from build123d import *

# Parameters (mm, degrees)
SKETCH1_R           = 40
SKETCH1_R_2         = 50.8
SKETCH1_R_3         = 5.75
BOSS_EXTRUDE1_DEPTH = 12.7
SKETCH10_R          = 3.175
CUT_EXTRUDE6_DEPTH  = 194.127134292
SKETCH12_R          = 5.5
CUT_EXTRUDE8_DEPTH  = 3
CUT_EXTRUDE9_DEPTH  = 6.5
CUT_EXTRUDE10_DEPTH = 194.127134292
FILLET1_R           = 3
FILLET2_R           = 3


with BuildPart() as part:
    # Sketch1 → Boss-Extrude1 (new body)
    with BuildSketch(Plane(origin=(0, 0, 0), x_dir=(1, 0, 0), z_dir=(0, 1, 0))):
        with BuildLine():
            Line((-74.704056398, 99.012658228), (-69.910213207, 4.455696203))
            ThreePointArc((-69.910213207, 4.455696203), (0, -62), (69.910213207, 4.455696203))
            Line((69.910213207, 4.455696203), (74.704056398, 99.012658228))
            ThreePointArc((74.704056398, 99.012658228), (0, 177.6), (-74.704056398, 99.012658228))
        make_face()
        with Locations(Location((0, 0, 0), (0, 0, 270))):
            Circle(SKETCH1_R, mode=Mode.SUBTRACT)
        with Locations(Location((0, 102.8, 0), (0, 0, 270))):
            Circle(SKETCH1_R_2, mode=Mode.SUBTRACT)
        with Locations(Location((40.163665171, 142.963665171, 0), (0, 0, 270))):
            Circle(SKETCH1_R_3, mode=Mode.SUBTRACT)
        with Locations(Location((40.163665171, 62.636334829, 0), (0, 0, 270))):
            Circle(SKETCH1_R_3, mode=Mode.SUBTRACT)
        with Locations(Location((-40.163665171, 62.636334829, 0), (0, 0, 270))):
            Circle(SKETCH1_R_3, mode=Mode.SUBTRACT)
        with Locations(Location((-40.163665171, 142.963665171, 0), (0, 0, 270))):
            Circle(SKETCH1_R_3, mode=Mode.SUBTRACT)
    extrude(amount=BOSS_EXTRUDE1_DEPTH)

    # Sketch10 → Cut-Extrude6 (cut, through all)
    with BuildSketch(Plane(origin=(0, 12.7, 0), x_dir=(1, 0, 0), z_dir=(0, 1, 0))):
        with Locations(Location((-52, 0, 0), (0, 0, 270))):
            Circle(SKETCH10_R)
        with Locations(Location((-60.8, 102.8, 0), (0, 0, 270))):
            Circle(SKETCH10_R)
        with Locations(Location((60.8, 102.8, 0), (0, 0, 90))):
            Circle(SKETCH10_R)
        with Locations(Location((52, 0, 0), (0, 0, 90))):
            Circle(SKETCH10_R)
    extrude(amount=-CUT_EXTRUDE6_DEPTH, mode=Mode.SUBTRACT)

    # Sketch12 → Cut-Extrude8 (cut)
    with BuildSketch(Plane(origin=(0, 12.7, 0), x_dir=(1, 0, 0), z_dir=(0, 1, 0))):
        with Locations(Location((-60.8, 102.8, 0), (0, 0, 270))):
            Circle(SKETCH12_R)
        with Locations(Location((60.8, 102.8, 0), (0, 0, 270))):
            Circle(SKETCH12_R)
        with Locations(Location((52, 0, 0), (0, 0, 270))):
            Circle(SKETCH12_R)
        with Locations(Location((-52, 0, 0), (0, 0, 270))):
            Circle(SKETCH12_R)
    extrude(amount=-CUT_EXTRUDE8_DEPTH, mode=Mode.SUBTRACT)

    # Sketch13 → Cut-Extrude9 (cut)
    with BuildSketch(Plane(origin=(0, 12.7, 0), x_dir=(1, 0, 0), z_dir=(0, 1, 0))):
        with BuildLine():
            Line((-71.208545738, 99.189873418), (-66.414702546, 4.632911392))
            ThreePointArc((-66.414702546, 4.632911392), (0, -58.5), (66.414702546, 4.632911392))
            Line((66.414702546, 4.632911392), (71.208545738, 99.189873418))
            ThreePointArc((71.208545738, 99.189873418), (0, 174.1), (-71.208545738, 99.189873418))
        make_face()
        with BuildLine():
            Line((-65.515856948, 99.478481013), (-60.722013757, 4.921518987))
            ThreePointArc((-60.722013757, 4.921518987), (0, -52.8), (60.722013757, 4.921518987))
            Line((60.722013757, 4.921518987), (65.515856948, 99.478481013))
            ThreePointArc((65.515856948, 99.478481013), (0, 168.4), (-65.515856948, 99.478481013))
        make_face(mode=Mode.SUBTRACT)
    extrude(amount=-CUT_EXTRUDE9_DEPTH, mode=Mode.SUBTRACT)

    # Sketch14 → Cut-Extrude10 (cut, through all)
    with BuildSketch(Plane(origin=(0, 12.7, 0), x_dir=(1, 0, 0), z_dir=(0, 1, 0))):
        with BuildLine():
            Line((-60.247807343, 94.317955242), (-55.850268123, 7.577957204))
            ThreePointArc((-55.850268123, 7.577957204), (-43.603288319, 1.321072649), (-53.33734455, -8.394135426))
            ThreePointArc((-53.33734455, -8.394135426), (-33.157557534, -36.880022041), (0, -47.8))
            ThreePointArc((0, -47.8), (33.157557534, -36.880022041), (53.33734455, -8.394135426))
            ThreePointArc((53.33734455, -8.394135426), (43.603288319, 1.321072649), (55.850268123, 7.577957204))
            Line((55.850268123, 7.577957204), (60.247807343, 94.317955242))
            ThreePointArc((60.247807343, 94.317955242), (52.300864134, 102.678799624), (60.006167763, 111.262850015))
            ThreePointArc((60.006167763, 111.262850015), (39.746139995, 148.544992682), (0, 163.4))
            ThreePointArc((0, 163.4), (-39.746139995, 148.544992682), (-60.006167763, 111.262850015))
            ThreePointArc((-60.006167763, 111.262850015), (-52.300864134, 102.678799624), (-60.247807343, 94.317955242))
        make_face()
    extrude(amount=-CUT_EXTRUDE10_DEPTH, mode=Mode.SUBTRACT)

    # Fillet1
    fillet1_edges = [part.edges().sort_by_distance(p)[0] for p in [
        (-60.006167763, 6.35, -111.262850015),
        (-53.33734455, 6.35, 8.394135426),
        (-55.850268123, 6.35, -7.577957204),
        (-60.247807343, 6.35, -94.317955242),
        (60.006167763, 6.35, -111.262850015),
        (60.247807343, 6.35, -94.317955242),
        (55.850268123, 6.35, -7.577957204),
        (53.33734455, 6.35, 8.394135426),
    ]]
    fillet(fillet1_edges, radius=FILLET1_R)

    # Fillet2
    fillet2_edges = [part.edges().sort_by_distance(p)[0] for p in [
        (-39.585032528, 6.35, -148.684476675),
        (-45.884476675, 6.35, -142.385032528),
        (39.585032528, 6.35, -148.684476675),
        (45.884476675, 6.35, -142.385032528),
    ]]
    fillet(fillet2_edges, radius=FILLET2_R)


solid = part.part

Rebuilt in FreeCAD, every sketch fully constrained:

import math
import FreeCAD as App
import Part
import Sketcher
Q = App.Units.Quantity


def edges_at(feature, points):
    """Names of the edges that pass closest to the given points."""
    edges = feature.Shape.Edges
    near = lambda p: min(range(len(edges)), key=lambda i: edges[i].distToShape(Part.Vertex(*p))[0])
    return sorted({f"Edge{near(p) + 1}" for p in points})

doc = App.newDocument("Part")
body = doc.addObject("PartDesign::Body", "Body")

sketch1 = doc.addObject("Sketcher::SketchObject", "Sketch")
body.addObject(sketch1)
sketch1.AttachmentSupport = (doc.XZ_Plane, [""])
sketch1.MapMode = "FlatFace"
sketch1.addGeometry(Part.LineSegment(App.Vector(-75, -99, 0), App.Vector(-70, -4, 0)), False)
sketch1.addGeometry(Part.ArcOfCircle(Part.Circle(App.Vector(0, -8, 0), App.Vector(0, 0, 1), 70), math.radians(3), math.radians(177)), False)
sketch1.addGeometry(Part.LineSegment(App.Vector(70, -4, 0), App.Vector(75, -99, 0)), False)
sketch1.addGeometry(Part.ArcOfCircle(Part.Circle(App.Vector(0, -103, 0), App.Vector(0, 0, 1), 75), math.radians(177), math.radians(363)), False)
sketch1.addGeometry(Part.Circle(App.Vector(0, 0, 0), App.Vector(0, 0, 1), 40), False)
sketch1.addGeometry(Part.Circle(App.Vector(-40, -63, 0), App.Vector(0, 0, 1), 6), False)
sketch1.addGeometry(Part.Circle(App.Vector(0, -103, 0), App.Vector(0, 0, 1), 51), False)
sketch1.addGeometry(Part.Circle(App.Vector(-40, -143, 0), App.Vector(0, 0, 1), 6), False)
sketch1.addGeometry(Part.Circle(App.Vector(40, -63, 0), App.Vector(0, 0, 1), 6), False)
sketch1.addGeometry(Part.Circle(App.Vector(40, -143, 0), App.Vector(0, 0, 1), 6), False)
sketch1.addConstraint(Sketcher.Constraint("Tangent", 0, 2, 1, 2))
sketch1.addConstraint(Sketcher.Constraint("Tangent", 1, 1, 2, 1))
sketch1.addConstraint(Sketcher.Constraint("Tangent", 2, 2, 3, 2))
sketch1.addConstraint(Sketcher.Constraint("Tangent", 3, 1, 0, 1))
sketch1.addConstraint(Sketcher.Constraint("Coincident", 4, 3, -1, 1))
sketch1.addConstraint(Sketcher.Constraint("Coincident", 6, 3, 3, 3))
sketch1.addConstraint(Sketcher.Constraint("Equal", 5, 7))
sketch1.addConstraint(Sketcher.Constraint("Equal", 7, 8))
sketch1.addConstraint(Sketcher.Constraint("Equal", 8, 9))
sketch1.addConstraint(Sketcher.Constraint("Symmetric", 5, 3, 8, 3, -2))
sketch1.addConstraint(Sketcher.Constraint("Symmetric", 7, 3, 9, 3, -2))
sketch1.addConstraint(Sketcher.Constraint("Symmetric", 0, 2, 1, 1, -2))
sketch1.addConstraint(Sketcher.Constraint("Vertical", 5, 3, 7, 3))
sketch1.addConstraint(Sketcher.Constraint("Diameter", 4, Q("80 mm")))
sketch1.addConstraint(Sketcher.Constraint("Radius", 1, Q("70 mm")))
sketch1.addConstraint(Sketcher.Constraint("Diameter", 5, Q("11.5 mm")))
sketch1.addConstraint(Sketcher.Constraint("Diameter", 6, Q("101.6 mm")))
sketch1.addConstraint(Sketcher.Constraint("Radius", 3, Q("74.8 mm")))
sketch1.addConstraint(Sketcher.Constraint("DistanceY", 1, 3, -1, 1, Q("8 mm")))
sketch1.addConstraint(Sketcher.Constraint("DistanceY", 3, 3, -1, 1, Q("102.8 mm")))
sketch1.addConstraint(Sketcher.Constraint("DistanceY", 7, 3, 5, 3, Q("80.32733 mm")))
sketch1.addConstraint(Sketcher.Constraint("DistanceX", 5, 3, 8, 3, Q("80.32733 mm")))
sketch1.addConstraint(Sketcher.Constraint("DistanceY", 5, 3, 0, 2, Q("58.180639 mm")))
pad1 = doc.addObject("PartDesign::Pad", "Pad")
body.addObject(pad1)
pad1.Profile = sketch1
pad1.Length = 12.7
pad1.Reversed = True

sketch2 = doc.addObject("Sketcher::SketchObject", "Sketch001")
body.addObject(sketch2)
sketch2.AttachmentSupport = (doc.XZ_Plane, [""])
sketch2.MapMode = "FlatFace"
sketch2.AttachmentOffset = App.Placement(App.Vector(0, 0, -12.7), App.Rotation())
sketch2.addGeometry(Part.Circle(App.Vector(-52, 0, 0), App.Vector(0, 0, 1), 3.2), False)
sketch2.addGeometry(Part.Circle(App.Vector(-60.8, -102.8, 0), App.Vector(0, 0, 1), 3.2), False)
sketch2.addGeometry(Part.Circle(App.Vector(60.8, -102.8, 0), App.Vector(0, 0, 1), 3.2), False)
sketch2.addGeometry(Part.Circle(App.Vector(52, 0, 0), App.Vector(0, 0, 1), 3.2), False)
sketch2.addConstraint(Sketcher.Constraint("Equal", 0, 1))
sketch2.addConstraint(Sketcher.Constraint("Equal", 1, 2))
sketch2.addConstraint(Sketcher.Constraint("Equal", 2, 3))
sketch2.addConstraint(Sketcher.Constraint("Symmetric", 0, 3, 3, 3, -1, 1))
sketch2.addConstraint(Sketcher.Constraint("Symmetric", 1, 3, 2, 3, -2))
sketch2.addConstraint(Sketcher.Constraint("PointOnObject", 0, 3, -1))
sketch2.addConstraint(Sketcher.Constraint("Diameter", 0, Q("6.35 mm")))
sketch2.addConstraint(Sketcher.Constraint("DistanceX", 0, 3, -1, 1, Q("52 mm")))
sketch2.addConstraint(Sketcher.Constraint("DistanceX", 1, 3, -1, 1, Q("60.8 mm")))
sketch2.addConstraint(Sketcher.Constraint("DistanceY", 1, 3, -1, 1, Q("102.8 mm")))
pocket1 = doc.addObject("PartDesign::Pocket", "Pocket")
body.addObject(pocket1)
pocket1.Profile = sketch2
pocket1.Type = "ThroughAll"
pocket1.Reversed = True

sketch3 = doc.addObject("Sketcher::SketchObject", "Sketch002")
body.addObject(sketch3)
sketch3.AttachmentSupport = (doc.XZ_Plane, [""])
sketch3.MapMode = "FlatFace"
sketch3.AttachmentOffset = App.Placement(App.Vector(0, 0, -12.7), App.Rotation())
sketch3.addGeometry(Part.Circle(App.Vector(-61, -103, 0), App.Vector(0, 0, 1), 6), False)
sketch3.addGeometry(Part.Circle(App.Vector(61, -103, 0), App.Vector(0, 0, 1), 6), False)
sketch3.addGeometry(Part.Circle(App.Vector(52, 0, 0), App.Vector(0, 0, 1), 6), False)
sketch3.addGeometry(Part.Circle(App.Vector(-52, 0, 0), App.Vector(0, 0, 1), 6), False)
sketch3.addConstraint(Sketcher.Constraint("Equal", 0, 1))
sketch3.addConstraint(Sketcher.Constraint("Equal", 1, 2))
sketch3.addConstraint(Sketcher.Constraint("Equal", 2, 3))
sketch3.addConstraint(Sketcher.Constraint("Symmetric", 2, 3, 3, 3, -1, 1))
sketch3.addConstraint(Sketcher.Constraint("Symmetric", 0, 3, 1, 3, -2))
sketch3.addConstraint(Sketcher.Constraint("PointOnObject", 2, 3, -1))
sketch3.addConstraint(Sketcher.Constraint("Diameter", 0, Q("11 mm")))
sketch3.addConstraint(Sketcher.Constraint("DistanceX", -1, 1, 2, 3, Q("52 mm")))
sketch3.addConstraint(Sketcher.Constraint("DistanceX", 0, 3, -1, 1, Q("60.8 mm")))
sketch3.addConstraint(Sketcher.Constraint("DistanceY", 0, 3, -1, 1, Q("102.8 mm")))
pocket2 = doc.addObject("PartDesign::Pocket", "Pocket001")
body.addObject(pocket2)
pocket2.Profile = sketch3
pocket2.Length = 3
pocket2.Reversed = True

sketch4 = doc.addObject("Sketcher::SketchObject", "Sketch003")
body.addObject(sketch4)
sketch4.AttachmentSupport = (doc.XZ_Plane, [""])
sketch4.MapMode = "FlatFace"
sketch4.AttachmentOffset = App.Placement(App.Vector(0, 0, -12.7), App.Rotation())
sketch4.addGeometry(Part.LineSegment(App.Vector(-71, -99, 0), App.Vector(-66, -5, 0)), False)
sketch4.addGeometry(Part.ArcOfCircle(Part.Circle(App.Vector(0, -8, 0), App.Vector(0, 0, 1), 66), math.radians(3), math.radians(177)), False)
sketch4.addGeometry(Part.LineSegment(App.Vector(66, -5, 0), App.Vector(71, -99, 0)), False)
sketch4.addGeometry(Part.ArcOfCircle(Part.Circle(App.Vector(0, -103, 0), App.Vector(0, 0, 1), 71), math.radians(177), math.radians(363)), False)
sketch4.addGeometry(Part.LineSegment(App.Vector(-61, -5, 0), App.Vector(-66, -99, 0)), False)
sketch4.addGeometry(Part.ArcOfCircle(Part.Circle(App.Vector(0, -103, 0), App.Vector(0, 0, 1), 66), math.radians(177), math.radians(363)), False)
sketch4.addGeometry(Part.LineSegment(App.Vector(66, -99, 0), App.Vector(61, -5, 0)), False)
sketch4.addGeometry(Part.ArcOfCircle(Part.Circle(App.Vector(0, -8, 0), App.Vector(0, 0, 1), 61), math.radians(3), math.radians(177)), False)
sketch4.addConstraint(Sketcher.Constraint("Tangent", 0, 2, 1, 2))
sketch4.addConstraint(Sketcher.Constraint("Tangent", 1, 1, 2, 1))
sketch4.addConstraint(Sketcher.Constraint("Tangent", 2, 2, 3, 2))
sketch4.addConstraint(Sketcher.Constraint("Tangent", 3, 1, 0, 1))
sketch4.addConstraint(Sketcher.Constraint("Tangent", 4, 2, 5, 1))
sketch4.addConstraint(Sketcher.Constraint("Tangent", 5, 2, 6, 1))
sketch4.addConstraint(Sketcher.Constraint("Tangent", 6, 2, 7, 1))
sketch4.addConstraint(Sketcher.Constraint("Tangent", 7, 2, 4, 1))
sketch4.addConstraint(Sketcher.Constraint("Coincident", 5, 3, 3, 3))
sketch4.addConstraint(Sketcher.Constraint("Coincident", 7, 3, 1, 3))
sketch4.addConstraint(Sketcher.Constraint("Symmetric", 0, 2, 1, 1, -2))
sketch4.addConstraint(Sketcher.Constraint("Parallel", 0, 4))
sketch4.addConstraint(Sketcher.Constraint("Radius", 1, Q("66.5 mm")))
sketch4.addConstraint(Sketcher.Constraint("Radius", 3, Q("71.3 mm")))
sketch4.addConstraint(Sketcher.Constraint("Radius", 5, Q("65.6 mm")))
sketch4.addConstraint(Sketcher.Constraint("DistanceY", 1, 3, -1, 1, Q("8 mm")))
sketch4.addConstraint(Sketcher.Constraint("DistanceY", 3, 3, -1, 1, Q("102.8 mm")))
pocket3 = doc.addObject("PartDesign::Pocket", "Pocket002")
body.addObject(pocket3)
pocket3.Profile = sketch4
pocket3.Length = 6.5
pocket3.Reversed = True

sketch5 = doc.addObject("Sketcher::SketchObject", "Sketch004")
body.addObject(sketch5)
sketch5.AttachmentSupport = (doc.XZ_Plane, [""])
sketch5.MapMode = "FlatFace"
sketch5.AttachmentOffset = App.Placement(App.Vector(0, 0, -12.7), App.Rotation())
sketch5.addGeometry(Part.LineSegment(App.Vector(-60, -94, 0), App.Vector(-56, -8, 0)), False)
sketch5.addGeometry(Part.ArcOfCircle(Part.Circle(App.Vector(-52, 0, 0), App.Vector(0, 0, 1), 8), math.radians(-117), math.radians(99)), False)
sketch5.addGeometry(Part.ArcOfCircle(Part.Circle(App.Vector(0, -8, 0), App.Vector(0, 0, 1), 56), math.radians(90), math.radians(163)), False)
sketch5.addGeometry(Part.ArcOfCircle(Part.Circle(App.Vector(0, -8, 0), App.Vector(0, 0, 1), 56), math.radians(17), math.radians(90)), False)
sketch5.addGeometry(Part.ArcOfCircle(Part.Circle(App.Vector(52, 0, 0), App.Vector(0, 0, 1), 8), math.radians(81), math.radians(297)), False)
sketch5.addGeometry(Part.LineSegment(App.Vector(56, -8, 0), App.Vector(60, -94, 0)), False)
sketch5.addGeometry(Part.ArcOfCircle(Part.Circle(App.Vector(61, -103, 0), App.Vector(0, 0, 1), 8), math.radians(94), math.radians(265)), False)
sketch5.addGeometry(Part.ArcOfCircle(Part.Circle(App.Vector(0, -103, 0), App.Vector(0, 0, 1), 61), math.radians(-90), math.radians(-8)), False)
sketch5.addGeometry(Part.ArcOfCircle(Part.Circle(App.Vector(0, -103, 0), App.Vector(0, 0, 1), 61), math.radians(-172), math.radians(-90)), False)
sketch5.addGeometry(Part.ArcOfCircle(Part.Circle(App.Vector(-61, -103, 0), App.Vector(0, 0, 1), 8), math.radians(-85), math.radians(86)), False)
sketch5.addConstraint(Sketcher.Constraint("Coincident", 0, 2, 1, 1))
sketch5.addConstraint(Sketcher.Constraint("Coincident", 1, 2, 2, 2))
sketch5.addConstraint(Sketcher.Constraint("Tangent", 2, 1, 3, 2))
sketch5.addConstraint(Sketcher.Constraint("Coincident", 3, 1, 4, 1))
sketch5.addConstraint(Sketcher.Constraint("Coincident", 4, 2, 5, 1))
sketch5.addConstraint(Sketcher.Constraint("Coincident", 5, 2, 6, 1))
sketch5.addConstraint(Sketcher.Constraint("Coincident", 6, 2, 7, 2))
sketch5.addConstraint(Sketcher.Constraint("Tangent", 7, 1, 8, 2))
sketch5.addConstraint(Sketcher.Constraint("Coincident", 8, 1, 9, 1))
sketch5.addConstraint(Sketcher.Constraint("Coincident", 9, 2, 0, 1))
sketch5.addConstraint(Sketcher.Constraint("Equal", 2, 3))
sketch5.addConstraint(Sketcher.Constraint("Equal", 1, 4))
sketch5.addConstraint(Sketcher.Constraint("Equal", 4, 6))
sketch5.addConstraint(Sketcher.Constraint("Equal", 7, 8))
sketch5.addConstraint(Sketcher.Constraint("Equal", 6, 9))
sketch5.addConstraint(Sketcher.Constraint("Symmetric", 1, 3, 4, 3, -1, 1))
sketch5.addConstraint(Sketcher.Constraint("Symmetric", 6, 3, 9, 3, -2))
sketch5.addConstraint(Sketcher.Constraint("Symmetric", 1, 2, 3, 1, -2))
sketch5.addConstraint(Sketcher.Constraint("PointOnObject", 7, 3, -2))
sketch5.addConstraint(Sketcher.Constraint("PointOnObject", 2, 1, -2))
sketch5.addConstraint(Sketcher.Constraint("PointOnObject", 7, 1, -2))
sketch5.addConstraint(Sketcher.Constraint("Horizontal", 6, 3, 7, 3))
sketch5.addConstraint(Sketcher.Constraint("Horizontal", 0, 2, 4, 2))
sketch5.addConstraint(Sketcher.Constraint("Horizontal", 5, 2, 9, 2))
sketch5.addConstraint(Sketcher.Constraint("Radius", 1, Q("8.5 mm")))
sketch5.addConstraint(Sketcher.Constraint("Radius", 2, Q("55.8 mm")))
sketch5.addConstraint(Sketcher.Constraint("Radius", 7, Q("60.6 mm")))
sketch5.addConstraint(Sketcher.Constraint("DistanceX", 1, 3, -1, 1, Q("52 mm")))
sketch5.addConstraint(Sketcher.Constraint("DistanceY", 2, 3, -1, 1, Q("8 mm")))
sketch5.addConstraint(Sketcher.Constraint("DistanceX", -1, 1, 6, 3, Q("60.8 mm")))
sketch5.addConstraint(Sketcher.Constraint("DistanceY", 6, 3, -1, 1, Q("102.8 mm")))
sketch5.addConstraint(Sketcher.Constraint("DistanceY", 5, 2, 4, 2, Q("86.739998 mm")))
sketch5.addConstraint(Sketcher.Constraint("Distance", 0, Q("86.8514 mm")))
pocket4 = doc.addObject("PartDesign::Pocket", "Pocket003")
body.addObject(pocket4)
pocket4.Profile = sketch5
pocket4.Type = "ThroughAll"
pocket4.Reversed = True
doc.recompute()

fillet = doc.addObject("PartDesign::Fillet", "Fillet")
body.addObject(fillet)
fillet.Base = (pocket4, edges_at(pocket4, [
    (-60.006, 6.35, -111.263),
    (-53.337, 6.35, 8.394),
    (-55.85, 6.35, -7.578),
    (-60.248, 6.35, -94.318),
    (60.006, 6.35, -111.263),
    (60.248, 6.35, -94.318),
    (55.85, 6.35, -7.578),
    (53.337, 6.35, 8.394),
]))
fillet.Radius = 3
doc.recompute()

fillet2 = doc.addObject("PartDesign::Fillet", "Fillet001")
body.addObject(fillet2)
fillet2.Base = (fillet, edges_at(fillet, [
    (-39.585, 6.35, -148.684),
    (-45.884, 6.35, -142.385),
    (39.585, 6.35, -148.684),
    (45.884, 6.35, -142.385),
]))
fillet2.Radius = 3

doc.recompute()
